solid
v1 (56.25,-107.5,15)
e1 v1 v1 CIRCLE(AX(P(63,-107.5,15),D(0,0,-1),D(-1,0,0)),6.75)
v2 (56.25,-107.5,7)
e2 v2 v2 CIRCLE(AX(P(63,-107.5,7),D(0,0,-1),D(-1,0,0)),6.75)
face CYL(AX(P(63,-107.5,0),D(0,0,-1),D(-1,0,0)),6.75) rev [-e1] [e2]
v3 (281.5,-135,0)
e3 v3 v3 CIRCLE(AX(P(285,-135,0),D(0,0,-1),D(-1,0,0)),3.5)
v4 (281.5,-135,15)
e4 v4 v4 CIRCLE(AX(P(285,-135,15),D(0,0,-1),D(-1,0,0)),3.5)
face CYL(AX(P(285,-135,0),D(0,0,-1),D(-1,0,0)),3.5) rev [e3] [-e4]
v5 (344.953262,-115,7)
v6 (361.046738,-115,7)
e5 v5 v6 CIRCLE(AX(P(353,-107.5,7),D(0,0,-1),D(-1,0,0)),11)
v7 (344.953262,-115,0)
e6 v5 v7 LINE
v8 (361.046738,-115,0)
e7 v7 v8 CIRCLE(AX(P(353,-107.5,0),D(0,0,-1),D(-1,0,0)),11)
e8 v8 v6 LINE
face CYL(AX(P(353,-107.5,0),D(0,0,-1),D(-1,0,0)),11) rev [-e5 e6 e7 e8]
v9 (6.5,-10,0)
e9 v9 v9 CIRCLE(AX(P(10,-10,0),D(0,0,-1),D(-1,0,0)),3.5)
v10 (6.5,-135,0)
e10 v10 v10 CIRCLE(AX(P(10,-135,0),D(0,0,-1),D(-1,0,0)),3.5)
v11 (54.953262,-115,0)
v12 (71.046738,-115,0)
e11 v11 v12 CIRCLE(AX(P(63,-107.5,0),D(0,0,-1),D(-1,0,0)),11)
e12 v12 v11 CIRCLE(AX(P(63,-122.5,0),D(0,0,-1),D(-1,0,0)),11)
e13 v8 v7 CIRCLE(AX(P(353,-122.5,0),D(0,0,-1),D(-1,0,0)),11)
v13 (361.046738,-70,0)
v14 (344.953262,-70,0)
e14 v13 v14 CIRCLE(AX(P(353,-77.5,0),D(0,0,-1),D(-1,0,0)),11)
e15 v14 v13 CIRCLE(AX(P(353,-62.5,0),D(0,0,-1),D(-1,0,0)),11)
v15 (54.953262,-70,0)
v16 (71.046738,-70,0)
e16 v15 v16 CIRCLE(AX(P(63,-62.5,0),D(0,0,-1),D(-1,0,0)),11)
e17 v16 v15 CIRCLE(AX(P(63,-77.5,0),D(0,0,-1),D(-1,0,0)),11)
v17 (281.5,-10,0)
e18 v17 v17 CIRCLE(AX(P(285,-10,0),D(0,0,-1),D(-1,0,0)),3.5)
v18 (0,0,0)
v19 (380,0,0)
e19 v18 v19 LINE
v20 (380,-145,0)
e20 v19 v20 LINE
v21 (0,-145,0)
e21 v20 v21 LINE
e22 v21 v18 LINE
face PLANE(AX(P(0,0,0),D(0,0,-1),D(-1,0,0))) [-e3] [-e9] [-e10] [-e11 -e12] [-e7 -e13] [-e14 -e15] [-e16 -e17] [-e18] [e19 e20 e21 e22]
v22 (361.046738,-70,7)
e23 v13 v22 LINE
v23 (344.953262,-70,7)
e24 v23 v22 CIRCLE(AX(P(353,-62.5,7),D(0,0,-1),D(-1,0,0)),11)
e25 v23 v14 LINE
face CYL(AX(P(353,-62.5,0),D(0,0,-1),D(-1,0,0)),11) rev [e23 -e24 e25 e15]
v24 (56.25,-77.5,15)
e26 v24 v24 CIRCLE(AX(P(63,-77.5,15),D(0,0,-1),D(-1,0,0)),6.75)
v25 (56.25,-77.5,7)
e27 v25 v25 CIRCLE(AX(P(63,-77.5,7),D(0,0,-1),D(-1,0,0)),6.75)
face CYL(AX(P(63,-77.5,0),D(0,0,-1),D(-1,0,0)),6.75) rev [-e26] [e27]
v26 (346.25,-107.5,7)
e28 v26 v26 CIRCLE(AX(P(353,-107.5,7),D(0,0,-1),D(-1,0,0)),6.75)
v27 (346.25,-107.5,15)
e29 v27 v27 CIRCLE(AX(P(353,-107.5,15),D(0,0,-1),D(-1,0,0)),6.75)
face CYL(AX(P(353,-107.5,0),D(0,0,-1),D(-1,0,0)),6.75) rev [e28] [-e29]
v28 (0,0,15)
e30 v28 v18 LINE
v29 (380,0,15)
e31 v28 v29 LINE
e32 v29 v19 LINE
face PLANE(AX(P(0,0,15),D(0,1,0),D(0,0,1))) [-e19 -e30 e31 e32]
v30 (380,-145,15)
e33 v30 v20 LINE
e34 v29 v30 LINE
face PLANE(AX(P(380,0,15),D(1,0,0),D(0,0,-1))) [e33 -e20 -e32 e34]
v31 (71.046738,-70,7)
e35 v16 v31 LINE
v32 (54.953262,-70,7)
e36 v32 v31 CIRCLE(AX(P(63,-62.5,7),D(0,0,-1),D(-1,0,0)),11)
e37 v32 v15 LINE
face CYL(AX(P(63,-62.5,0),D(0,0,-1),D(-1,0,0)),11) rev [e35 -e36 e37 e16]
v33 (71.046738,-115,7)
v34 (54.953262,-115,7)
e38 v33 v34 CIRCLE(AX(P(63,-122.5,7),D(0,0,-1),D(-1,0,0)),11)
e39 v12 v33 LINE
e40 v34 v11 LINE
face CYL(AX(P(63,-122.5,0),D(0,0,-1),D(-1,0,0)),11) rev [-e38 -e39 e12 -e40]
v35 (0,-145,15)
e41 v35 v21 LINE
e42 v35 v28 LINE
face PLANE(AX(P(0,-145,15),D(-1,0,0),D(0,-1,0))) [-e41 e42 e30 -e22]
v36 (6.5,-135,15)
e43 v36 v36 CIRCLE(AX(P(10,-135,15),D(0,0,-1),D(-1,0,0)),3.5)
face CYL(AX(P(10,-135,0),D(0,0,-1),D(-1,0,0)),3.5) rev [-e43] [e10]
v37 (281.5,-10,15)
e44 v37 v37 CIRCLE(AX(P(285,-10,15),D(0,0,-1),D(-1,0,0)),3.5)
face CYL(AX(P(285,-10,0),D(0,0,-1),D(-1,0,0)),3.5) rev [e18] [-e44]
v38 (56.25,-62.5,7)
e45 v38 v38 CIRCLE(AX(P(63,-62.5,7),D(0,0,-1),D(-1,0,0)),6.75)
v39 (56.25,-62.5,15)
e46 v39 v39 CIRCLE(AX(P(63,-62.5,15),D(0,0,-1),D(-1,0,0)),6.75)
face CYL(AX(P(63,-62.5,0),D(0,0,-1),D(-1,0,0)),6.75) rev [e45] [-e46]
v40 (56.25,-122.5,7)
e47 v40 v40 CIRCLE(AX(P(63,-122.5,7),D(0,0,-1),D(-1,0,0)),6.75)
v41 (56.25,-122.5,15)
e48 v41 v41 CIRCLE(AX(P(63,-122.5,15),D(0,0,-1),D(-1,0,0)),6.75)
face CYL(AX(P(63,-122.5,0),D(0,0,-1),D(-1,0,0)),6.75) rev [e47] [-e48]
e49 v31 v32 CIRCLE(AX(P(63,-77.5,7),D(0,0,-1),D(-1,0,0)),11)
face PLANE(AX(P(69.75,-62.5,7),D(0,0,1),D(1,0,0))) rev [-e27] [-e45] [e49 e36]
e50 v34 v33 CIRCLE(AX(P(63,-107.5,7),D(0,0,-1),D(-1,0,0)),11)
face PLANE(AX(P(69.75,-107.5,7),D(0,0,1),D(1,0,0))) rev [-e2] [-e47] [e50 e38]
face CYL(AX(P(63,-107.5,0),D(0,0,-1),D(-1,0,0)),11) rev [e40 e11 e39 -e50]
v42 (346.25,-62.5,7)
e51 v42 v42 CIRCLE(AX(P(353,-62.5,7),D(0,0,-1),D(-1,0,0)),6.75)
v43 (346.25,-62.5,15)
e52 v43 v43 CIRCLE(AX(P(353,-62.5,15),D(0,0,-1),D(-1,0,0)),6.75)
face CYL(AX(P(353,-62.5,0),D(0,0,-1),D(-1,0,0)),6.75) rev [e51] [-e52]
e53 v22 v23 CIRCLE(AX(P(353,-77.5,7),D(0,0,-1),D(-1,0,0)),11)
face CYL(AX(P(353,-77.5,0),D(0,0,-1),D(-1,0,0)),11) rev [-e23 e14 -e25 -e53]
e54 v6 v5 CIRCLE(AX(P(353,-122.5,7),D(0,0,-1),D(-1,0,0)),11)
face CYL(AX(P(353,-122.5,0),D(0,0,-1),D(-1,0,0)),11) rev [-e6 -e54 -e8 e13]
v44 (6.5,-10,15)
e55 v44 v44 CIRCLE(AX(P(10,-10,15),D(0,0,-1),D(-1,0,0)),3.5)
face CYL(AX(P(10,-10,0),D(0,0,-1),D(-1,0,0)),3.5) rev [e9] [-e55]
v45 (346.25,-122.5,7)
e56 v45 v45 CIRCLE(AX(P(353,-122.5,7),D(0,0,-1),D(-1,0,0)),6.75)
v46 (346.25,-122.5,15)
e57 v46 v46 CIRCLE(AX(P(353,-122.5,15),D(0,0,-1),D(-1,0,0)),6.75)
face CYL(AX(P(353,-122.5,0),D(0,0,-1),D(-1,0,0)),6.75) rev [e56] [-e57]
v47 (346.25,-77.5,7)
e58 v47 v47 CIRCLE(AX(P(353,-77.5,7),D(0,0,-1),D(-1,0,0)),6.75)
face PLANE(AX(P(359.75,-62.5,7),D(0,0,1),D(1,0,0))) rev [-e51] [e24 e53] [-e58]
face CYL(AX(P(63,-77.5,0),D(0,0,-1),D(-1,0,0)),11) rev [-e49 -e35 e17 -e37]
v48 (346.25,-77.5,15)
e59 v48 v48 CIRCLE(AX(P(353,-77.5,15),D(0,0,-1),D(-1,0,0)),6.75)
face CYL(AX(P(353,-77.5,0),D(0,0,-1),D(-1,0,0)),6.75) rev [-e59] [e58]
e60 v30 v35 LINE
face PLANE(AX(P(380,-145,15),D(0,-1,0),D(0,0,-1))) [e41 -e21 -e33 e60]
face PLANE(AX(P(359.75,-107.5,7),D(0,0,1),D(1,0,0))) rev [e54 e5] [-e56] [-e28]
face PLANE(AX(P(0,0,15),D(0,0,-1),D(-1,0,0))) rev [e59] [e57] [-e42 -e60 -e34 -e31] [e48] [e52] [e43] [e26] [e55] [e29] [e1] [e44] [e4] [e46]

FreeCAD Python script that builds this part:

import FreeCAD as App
import Part
import Sketcher
from FreeCAD import Vector

doc = App.newDocument("Part")
body = doc.addObject("PartDesign::Body", "Body")

# Sketch on XY plane
sketch1 = doc.addObject("Sketcher::SketchObject", "Sketch")
body.addObject(sketch1)
sketch1.AttachmentSupport = (doc.XY_Plane, [""])
sketch1.MapMode = "FlatFace"
sketch1.addGeometry([
    Part.LineSegment(Vector(380, 0, 0), Vector(380, -145, 0)),
    Part.LineSegment(Vector(380, -145, 0), Vector(0, -145, 0)),
    Part.LineSegment(Vector(0, -145, 0), Vector(0, 0, 0)),
    Part.LineSegment(Vector(0, 0, 0), Vector(380, 0, 0)),
], False)
sketch1.addConstraint([
    Sketcher.Constraint("Coincident", 0, 2, 1, 1),
    Sketcher.Constraint("Coincident", 1, 2, 2, 1),
    Sketcher.Constraint("Coincident", 2, 2, 3, 1),
    Sketcher.Constraint("Coincident", 3, 2, 0, 1),
    Sketcher.Constraint("Vertical", 0),
    Sketcher.Constraint("Horizontal", 1),
    Sketcher.Constraint("Vertical", 2),
    Sketcher.Constraint("Horizontal", 3),
    Sketcher.Constraint("Coincident", 2, 2, -1, 1),
    Sketcher.Constraint("DistanceX", 1, 2, 1, 1, 380.0),
    Sketcher.Constraint("DistanceY", 0, 2, 0, 1, 145.0),
])
pad1 = doc.addObject("PartDesign::Pad", "Pad")
body.addObject(pad1)
pad1.Profile = sketch1
pad1.Length = 15

# Sketch on XY plane
sketch2 = doc.addObject("Sketcher::SketchObject", "Sketch001")
body.addObject(sketch2)
sketch2.AttachmentSupport = (doc.XY_Plane, [""])
sketch2.MapMode = "FlatFace"
sketch2.addGeometry([
    Part.Circle(Vector(10, -135, 0), Vector(0, 0, 1), 3.5),
    Part.Circle(Vector(10, -10, 0), Vector(0, 0, 1), 3.5),
    Part.Circle(Vector(285, -10, 0), Vector(0, 0, 1), 3.5),
    Part.Circle(Vector(285, -135, 0), Vector(0, 0, 1), 3.5),
], False)
sketch2.addConstraint([
    Sketcher.Constraint("Equal", 0, 1),
    Sketcher.Constraint("Equal", 1, 2),
    Sketcher.Constraint("Equal", 2, 3),
    Sketcher.Constraint("Horizontal", 1, 3, 2, 3),
    Sketcher.Constraint("Horizontal", 0, 3, 3, 3),
    Sketcher.Constraint("Vertical", 0, 3, 1, 3),
    Sketcher.Constraint("Vertical", 2, 3, 3, 3),
    Sketcher.Constraint("Diameter", 0, 7.0),
    Sketcher.Constraint("DistanceX", -1, 1, 0, 3, 10.0),
    Sketcher.Constraint("DistanceY", 0, 3, -1, 1, 135.0),
    Sketcher.Constraint("DistanceY", 1, 3, -1, 1, 10.0),
    Sketcher.Constraint("DistanceX", -1, 1, 2, 3, 285.0),
])
doc.recompute()
hole = doc.addObject("PartDesign::Hole", "Hole")
body.addObject(hole)
hole.Profile = sketch2
hole.ThreadType = "None"
hole.Diameter = 7
hole.DepthType = "ThroughAll"
hole.Reversed = True

# Sketch on XY plane
sketch3 = doc.addObject("Sketcher::SketchObject", "Sketch002")
body.addObject(sketch3)
sketch3.AttachmentSupport = (doc.XY_Plane, [""])
sketch3.MapMode = "FlatFace"
sketch3.addGeometry([
    Part.Circle(Vector(63, -62, 0), Vector(0, 0, 1), 7),
    Part.Circle(Vector(63, -108, 0), Vector(0, 0, 1), 7),
    Part.Circle(Vector(353, -108, 0), Vector(0, 0, 1), 7),
    Part.Circle(Vector(353, -62, 0), Vector(0, 0, 1), 7),
], False)
sketch3.addConstraint([
    Sketcher.Constraint("Equal", 0, 1),
    Sketcher.Constraint("Equal", 1, 2),
    Sketcher.Constraint("Equal", 2, 3),
    Sketcher.Constraint("Horizontal", 1, 3, 2, 3),
    Sketcher.Constraint("Horizontal", 0, 3, 3, 3),
    Sketcher.Constraint("Vertical", 0, 3, 1, 3),
    Sketcher.Constraint("Vertical", 2, 3, 3, 3),
    Sketcher.Constraint("Diameter", 0, 13.5),
    Sketcher.Constraint("DistanceX", -1, 1, 0, 3, 63.0),
    Sketcher.Constraint("DistanceX", -1, 1, 2, 3, 353.0),
    Sketcher.Constraint("DistanceY", 1, 3, 0, 3, 45.0),
    Sketcher.Constraint("DistanceY", 0, 3, -1, 1, 62.5),
])
doc.recompute()
hole2 = doc.addObject("PartDesign::Hole", "Hole001")
body.addObject(hole2)
hole2.Profile = sketch3
hole2.ThreadType = "None"
hole2.Diameter = 13.5
hole2.DepthType = "ThroughAll"
hole2.HoleCutType = "Counterbore"
hole2.HoleCutDiameter = 22
hole2.HoleCutDepth = 7
hole2.Reversed = True
doc.recompute()

linearpattern = doc.addObject("PartDesign::LinearPattern", "LinearPattern")
body.addObject(linearpattern)
linearpattern.Originals = [hole2]
linearpattern.Direction = (doc.Y_Axis, [""])
linearpattern.Mode = "offset"
linearpattern.Offset = 15
linearpattern.Occurrences = 2
linearpattern.Reversed = True
body.Tip = linearpattern

doc.recompute()
